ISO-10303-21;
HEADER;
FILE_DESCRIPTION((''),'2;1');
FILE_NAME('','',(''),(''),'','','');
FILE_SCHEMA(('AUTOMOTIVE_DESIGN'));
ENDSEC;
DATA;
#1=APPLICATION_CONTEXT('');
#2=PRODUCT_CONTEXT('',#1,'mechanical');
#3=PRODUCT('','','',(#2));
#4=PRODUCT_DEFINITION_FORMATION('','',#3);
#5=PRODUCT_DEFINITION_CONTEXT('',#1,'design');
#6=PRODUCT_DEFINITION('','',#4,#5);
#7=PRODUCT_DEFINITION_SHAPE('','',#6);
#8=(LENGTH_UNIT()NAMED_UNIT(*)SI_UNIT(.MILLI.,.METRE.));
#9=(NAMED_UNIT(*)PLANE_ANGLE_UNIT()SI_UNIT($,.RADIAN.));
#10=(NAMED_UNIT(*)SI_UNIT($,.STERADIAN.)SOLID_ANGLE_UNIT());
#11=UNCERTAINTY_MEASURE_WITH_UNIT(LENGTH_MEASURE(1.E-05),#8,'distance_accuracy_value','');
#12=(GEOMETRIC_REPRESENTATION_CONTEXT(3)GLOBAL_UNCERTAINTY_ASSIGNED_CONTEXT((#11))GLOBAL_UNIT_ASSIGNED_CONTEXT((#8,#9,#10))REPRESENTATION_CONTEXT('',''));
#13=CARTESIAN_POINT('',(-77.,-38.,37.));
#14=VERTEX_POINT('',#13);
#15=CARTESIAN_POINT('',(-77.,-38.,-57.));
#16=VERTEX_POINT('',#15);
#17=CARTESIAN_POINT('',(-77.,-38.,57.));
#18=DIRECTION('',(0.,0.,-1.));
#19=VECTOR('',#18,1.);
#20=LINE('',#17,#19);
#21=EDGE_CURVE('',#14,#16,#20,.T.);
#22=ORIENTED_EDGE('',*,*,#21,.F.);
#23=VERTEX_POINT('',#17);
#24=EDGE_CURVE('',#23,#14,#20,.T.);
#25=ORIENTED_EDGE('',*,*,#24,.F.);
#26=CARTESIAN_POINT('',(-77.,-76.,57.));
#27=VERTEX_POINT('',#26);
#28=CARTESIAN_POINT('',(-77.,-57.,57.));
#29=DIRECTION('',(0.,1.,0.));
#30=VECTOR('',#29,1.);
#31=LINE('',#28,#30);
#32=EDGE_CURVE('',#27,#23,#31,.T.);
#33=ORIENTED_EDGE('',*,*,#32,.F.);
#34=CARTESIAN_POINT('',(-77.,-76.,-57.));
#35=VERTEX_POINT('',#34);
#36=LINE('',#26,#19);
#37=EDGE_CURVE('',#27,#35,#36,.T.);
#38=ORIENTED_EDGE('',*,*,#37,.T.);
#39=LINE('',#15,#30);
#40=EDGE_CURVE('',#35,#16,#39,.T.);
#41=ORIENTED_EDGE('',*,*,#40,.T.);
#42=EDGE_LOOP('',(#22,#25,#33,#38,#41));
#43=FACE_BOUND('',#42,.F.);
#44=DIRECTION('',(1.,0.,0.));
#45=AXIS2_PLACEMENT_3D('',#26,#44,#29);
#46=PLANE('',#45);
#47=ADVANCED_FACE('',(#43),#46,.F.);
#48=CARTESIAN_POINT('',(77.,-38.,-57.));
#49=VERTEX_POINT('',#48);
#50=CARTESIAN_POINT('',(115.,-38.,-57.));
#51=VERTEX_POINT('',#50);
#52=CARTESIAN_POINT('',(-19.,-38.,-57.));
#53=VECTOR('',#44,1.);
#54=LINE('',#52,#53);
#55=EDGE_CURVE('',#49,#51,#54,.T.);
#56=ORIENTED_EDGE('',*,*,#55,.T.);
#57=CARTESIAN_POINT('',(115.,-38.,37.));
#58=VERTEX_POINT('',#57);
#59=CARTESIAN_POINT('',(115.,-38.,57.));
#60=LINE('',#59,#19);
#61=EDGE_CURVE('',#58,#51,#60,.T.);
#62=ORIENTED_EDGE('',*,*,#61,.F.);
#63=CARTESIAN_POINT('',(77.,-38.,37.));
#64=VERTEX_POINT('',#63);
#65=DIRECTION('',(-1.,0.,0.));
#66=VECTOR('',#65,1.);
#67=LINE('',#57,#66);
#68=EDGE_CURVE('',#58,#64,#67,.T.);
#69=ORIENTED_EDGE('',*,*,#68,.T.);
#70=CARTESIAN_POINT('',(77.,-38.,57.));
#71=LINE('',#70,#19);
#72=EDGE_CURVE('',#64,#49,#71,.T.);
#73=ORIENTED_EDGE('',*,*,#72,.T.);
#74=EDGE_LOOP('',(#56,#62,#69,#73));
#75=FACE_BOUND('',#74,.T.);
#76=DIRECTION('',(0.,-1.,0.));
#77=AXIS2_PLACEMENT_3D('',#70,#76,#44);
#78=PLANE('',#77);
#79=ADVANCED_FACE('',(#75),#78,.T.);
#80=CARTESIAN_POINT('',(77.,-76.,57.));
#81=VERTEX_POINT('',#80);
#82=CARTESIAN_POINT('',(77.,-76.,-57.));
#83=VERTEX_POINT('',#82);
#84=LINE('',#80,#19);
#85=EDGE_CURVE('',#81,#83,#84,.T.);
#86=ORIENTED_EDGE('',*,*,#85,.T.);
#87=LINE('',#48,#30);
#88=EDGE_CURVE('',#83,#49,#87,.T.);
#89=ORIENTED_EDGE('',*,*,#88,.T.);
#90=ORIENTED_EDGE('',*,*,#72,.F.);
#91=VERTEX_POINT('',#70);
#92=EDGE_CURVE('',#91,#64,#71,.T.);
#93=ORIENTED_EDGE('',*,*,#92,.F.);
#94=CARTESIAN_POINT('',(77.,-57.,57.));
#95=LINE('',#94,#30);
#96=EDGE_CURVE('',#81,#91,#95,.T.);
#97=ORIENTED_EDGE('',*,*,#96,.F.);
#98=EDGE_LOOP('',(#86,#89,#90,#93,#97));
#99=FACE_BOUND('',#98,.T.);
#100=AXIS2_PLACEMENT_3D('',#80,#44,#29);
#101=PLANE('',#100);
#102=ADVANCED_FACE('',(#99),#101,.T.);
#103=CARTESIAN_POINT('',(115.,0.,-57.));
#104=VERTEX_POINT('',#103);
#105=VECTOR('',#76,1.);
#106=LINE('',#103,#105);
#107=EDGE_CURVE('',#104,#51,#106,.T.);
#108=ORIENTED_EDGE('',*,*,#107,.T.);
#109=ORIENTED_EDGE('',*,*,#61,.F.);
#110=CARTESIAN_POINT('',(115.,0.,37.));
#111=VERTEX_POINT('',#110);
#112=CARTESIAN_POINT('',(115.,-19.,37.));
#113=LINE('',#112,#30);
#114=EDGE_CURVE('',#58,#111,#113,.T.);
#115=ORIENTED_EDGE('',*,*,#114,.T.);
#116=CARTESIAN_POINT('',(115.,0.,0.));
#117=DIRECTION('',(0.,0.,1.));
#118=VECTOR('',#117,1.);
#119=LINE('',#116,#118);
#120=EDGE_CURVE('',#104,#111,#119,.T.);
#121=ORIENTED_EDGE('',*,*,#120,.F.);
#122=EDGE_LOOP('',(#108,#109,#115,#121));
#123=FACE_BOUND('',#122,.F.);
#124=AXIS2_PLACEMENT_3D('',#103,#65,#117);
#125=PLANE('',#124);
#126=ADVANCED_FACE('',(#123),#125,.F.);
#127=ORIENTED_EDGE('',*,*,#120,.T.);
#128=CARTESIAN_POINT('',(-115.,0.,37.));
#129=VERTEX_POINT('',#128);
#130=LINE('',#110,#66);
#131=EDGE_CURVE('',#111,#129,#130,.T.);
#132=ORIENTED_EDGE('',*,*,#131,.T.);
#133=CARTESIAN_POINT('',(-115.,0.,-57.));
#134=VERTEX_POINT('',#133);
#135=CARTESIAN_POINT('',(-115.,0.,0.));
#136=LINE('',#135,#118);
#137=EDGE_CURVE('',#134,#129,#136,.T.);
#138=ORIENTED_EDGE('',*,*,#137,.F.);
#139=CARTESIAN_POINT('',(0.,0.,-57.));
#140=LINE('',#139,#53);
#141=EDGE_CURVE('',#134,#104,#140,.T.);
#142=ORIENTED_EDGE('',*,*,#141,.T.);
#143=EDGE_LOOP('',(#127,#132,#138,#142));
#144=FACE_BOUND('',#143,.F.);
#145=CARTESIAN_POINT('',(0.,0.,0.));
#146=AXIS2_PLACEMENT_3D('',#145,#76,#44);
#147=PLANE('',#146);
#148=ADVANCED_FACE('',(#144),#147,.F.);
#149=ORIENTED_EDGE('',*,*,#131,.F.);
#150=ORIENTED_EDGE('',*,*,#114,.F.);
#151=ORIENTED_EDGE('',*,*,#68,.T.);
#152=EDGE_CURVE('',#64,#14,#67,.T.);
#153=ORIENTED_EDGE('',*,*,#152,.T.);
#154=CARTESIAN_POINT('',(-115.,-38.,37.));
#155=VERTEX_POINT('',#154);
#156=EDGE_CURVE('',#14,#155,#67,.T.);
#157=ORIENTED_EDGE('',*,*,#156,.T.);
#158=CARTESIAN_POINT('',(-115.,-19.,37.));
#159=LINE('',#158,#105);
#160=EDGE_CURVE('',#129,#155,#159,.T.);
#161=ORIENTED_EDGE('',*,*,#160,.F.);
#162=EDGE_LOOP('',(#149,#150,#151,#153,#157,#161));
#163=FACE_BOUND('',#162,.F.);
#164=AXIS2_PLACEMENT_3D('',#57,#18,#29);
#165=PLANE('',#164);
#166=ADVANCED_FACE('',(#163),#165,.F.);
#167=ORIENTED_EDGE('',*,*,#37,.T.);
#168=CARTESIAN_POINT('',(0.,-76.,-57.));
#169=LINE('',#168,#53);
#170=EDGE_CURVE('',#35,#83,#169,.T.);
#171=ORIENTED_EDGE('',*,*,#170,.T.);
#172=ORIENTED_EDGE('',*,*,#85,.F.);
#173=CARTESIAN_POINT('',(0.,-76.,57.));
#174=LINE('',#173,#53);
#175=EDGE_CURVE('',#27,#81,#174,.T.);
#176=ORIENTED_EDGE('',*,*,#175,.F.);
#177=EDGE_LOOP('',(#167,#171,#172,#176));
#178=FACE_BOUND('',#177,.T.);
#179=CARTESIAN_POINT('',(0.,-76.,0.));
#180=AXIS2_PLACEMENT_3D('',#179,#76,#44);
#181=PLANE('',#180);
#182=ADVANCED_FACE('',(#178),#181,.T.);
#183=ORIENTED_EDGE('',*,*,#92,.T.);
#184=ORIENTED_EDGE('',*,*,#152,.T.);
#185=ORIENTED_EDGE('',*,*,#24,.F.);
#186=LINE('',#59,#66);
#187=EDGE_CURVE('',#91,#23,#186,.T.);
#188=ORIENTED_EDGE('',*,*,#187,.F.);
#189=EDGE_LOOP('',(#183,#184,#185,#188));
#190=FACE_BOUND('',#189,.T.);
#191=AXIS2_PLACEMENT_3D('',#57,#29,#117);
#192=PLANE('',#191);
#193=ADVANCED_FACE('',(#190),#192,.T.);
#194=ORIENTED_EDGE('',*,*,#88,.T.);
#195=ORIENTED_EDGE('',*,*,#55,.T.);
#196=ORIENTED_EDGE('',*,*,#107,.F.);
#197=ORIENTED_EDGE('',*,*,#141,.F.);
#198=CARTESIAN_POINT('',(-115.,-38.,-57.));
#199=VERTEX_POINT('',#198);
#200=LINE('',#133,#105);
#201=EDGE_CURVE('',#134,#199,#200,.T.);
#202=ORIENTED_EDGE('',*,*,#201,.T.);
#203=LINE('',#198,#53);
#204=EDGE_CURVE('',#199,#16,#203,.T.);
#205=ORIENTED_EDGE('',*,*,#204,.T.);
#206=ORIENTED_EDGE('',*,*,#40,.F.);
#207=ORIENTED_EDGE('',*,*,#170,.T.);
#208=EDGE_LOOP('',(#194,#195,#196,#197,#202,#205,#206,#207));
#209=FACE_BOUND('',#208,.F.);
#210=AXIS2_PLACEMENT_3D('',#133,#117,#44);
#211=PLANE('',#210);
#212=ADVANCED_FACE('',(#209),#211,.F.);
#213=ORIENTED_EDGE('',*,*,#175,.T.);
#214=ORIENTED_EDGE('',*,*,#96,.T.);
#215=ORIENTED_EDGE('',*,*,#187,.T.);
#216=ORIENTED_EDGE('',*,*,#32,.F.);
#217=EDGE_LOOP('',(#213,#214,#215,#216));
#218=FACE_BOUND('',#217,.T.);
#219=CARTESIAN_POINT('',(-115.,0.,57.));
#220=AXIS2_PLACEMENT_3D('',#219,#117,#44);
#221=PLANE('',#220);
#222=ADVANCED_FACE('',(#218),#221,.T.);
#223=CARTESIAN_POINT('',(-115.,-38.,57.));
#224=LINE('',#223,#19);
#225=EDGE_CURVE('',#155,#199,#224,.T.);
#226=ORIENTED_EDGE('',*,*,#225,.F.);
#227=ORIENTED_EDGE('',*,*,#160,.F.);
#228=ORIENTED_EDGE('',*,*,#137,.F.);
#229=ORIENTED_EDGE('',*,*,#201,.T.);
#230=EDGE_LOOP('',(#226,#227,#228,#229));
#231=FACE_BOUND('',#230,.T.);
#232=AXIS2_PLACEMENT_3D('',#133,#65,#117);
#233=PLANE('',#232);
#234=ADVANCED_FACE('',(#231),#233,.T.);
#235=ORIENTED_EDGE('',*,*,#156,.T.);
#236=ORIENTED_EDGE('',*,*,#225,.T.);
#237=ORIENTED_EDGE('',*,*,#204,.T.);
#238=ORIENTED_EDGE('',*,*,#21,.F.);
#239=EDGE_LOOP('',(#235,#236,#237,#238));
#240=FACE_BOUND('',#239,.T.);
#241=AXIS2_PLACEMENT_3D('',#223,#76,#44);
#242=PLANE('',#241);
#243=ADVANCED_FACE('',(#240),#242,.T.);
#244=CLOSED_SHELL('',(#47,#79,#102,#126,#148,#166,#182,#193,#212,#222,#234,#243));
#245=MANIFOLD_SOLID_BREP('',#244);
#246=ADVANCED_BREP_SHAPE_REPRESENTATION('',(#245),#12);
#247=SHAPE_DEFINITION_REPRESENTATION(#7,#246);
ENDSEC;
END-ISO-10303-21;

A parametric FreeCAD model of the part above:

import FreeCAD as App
import Part
import Sketcher
from FreeCAD import Vector

doc = App.newDocument("Part")
body = doc.addObject("PartDesign::Body", "Body")

# Sketch on XZ plane
sketch1 = body.newObject("Sketcher::SketchObject", "Sketch")
sketch1.AttachmentSupport = (doc.getObject("XZ_Plane"), [""])
sketch1.MapMode = "FlatFace"
sketch1.addGeometry([
    Part.LineSegment(Vector(-115, 57, 0), Vector(-115, -57, 0)),
    Part.LineSegment(Vector(-115, -57, 0), Vector(115, -57, 0)),
    Part.LineSegment(Vector(115, -57, 0), Vector(115, 57, 0)),
    Part.LineSegment(Vector(115, 57, 0), Vector(-115, 57, 0)),
], False)
sketch1.addConstraint([
    Sketcher.Constraint("Coincident", 0, 2, 1, 1),
    Sketcher.Constraint("Coincident", 1, 2, 2, 1),
    Sketcher.Constraint("Coincident", 2, 2, 3, 1),
    Sketcher.Constraint("Coincident", 3, 2, 0, 1),
    Sketcher.Constraint("Vertical", 0),
    Sketcher.Constraint("Horizontal", 1),
    Sketcher.Constraint("Vertical", 2),
    Sketcher.Constraint("Horizontal", 3),
    Sketcher.Constraint("Symmetric", 0, 2, 2, 2, -1, 1),
    Sketcher.Constraint("DistanceX", 1, 1, 1, 2, 230.0),
    Sketcher.Constraint("DistanceY", 0, 2, 0, 1, 114.0),
])
pad1 = body.newObject("PartDesign::Pad", "Pad")
pad1.Profile = sketch1
pad1.Length = 76

# Sketch on YZ plane
sketch2 = body.newObject("Sketcher::SketchObject", "Sketch001")
sketch2.AttachmentSupport = (doc.getObject("YZ_Plane"), [""])
sketch2.MapMode = "FlatFace"
sketch2.AttachmentOffset = App.Placement(Vector(0, 0, 115), App.Rotation())
sketch2.addGeometry([
    Part.LineSegment(Vector(-38, 57, 0), Vector(-38, 37, 0)),
    Part.LineSegment(Vector(-38, 37, 0), Vector(0, 37, 0)),
    Part.LineSegment(Vector(0, 37, 0), Vector(0, 57, 0)),
    Part.LineSegment(Vector(0, 57, 0), Vector(-38, 57, 0)),
], False)
sketch2.addConstraint([
    Sketcher.Constraint("Coincident", 0, 2, 1, 1),
    Sketcher.Constraint("Coincident", 1, 2, 2, 1),
    Sketcher.Constraint("Coincident", 2, 2, 3, 1),
    Sketcher.Constraint("Coincident", 3, 2, 0, 1),
    Sketcher.Constraint("Vertical", 0),
    Sketcher.Constraint("Horizontal", 1),
    Sketcher.Constraint("Vertical", 2),
    Sketcher.Constraint("Horizontal", 3),
    Sketcher.Constraint("PointOnObject", 1, 2, -2),
    Sketcher.Constraint("DistanceX", 1, 1, 1, 2, 38.0),
    Sketcher.Constraint("DistanceY", 0, 2, 0, 1, 20.0),
    Sketcher.Constraint("DistanceY", -1, 1, 0, 2, 37.0),
])
pocket1 = body.newObject("PartDesign::Pocket", "Pocket")
pocket1.Profile = sketch2
pocket1.Type = "ThroughAll"

# Sketch on XY plane
sketch3 = body.newObject("Sketcher::SketchObject", "Sketch002")
sketch3.AttachmentSupport = (doc.getObject("XY_Plane"), [""])
sketch3.MapMode = "FlatFace"
sketch3.AttachmentOffset = App.Placement(Vector(0, 0, 57), App.Rotation())
sketch3.addGeometry([
    Part.LineSegment(Vector(-115, -38, 0), Vector(-115, -76, 0)),  # 0
    Part.LineSegment(Vector(-115, -76, 0), Vector(-77, -76, 0)),  # 1
    Part.LineSegment(Vector(-77, -76, 0), Vector(-77, -38, 0)),  # 2
    Part.LineSegment(Vector(-77, -38, 0), Vector(-115, -38, 0)),  # 3
    Part.LineSegment(Vector(77, -38, 0), Vector(77, -76, 0)),  # 4
    Part.LineSegment(Vector(77, -76, 0), Vector(115, -76, 0)),  # 5
    Part.LineSegment(Vector(115, -76, 0), Vector(115, -38, 0)),  # 6
    Part.LineSegment(Vector(115, -38, 0), Vector(77, -38, 0)),  # 7
], False)
sketch3.addConstraint([
    Sketcher.Constraint("Coincident", 0, 2, 1, 1),
    Sketcher.Constraint("Coincident", 1, 2, 2, 1),
    Sketcher.Constraint("Coincident", 2, 2, 3, 1),
    Sketcher.Constraint("Coincident", 3, 2, 0, 1),
    Sketcher.Constraint("Coincident", 4, 2, 5, 1),
    Sketcher.Constraint("Coincident", 5, 2, 6, 1),
    Sketcher.Constraint("Coincident", 6, 2, 7, 1),
    Sketcher.Constraint("Coincident", 7, 2, 4, 1),
    Sketcher.Constraint("Vertical", 0),
    Sketcher.Constraint("Horizontal", 1),
    Sketcher.Constraint("Vertical", 2),
    Sketcher.Constraint("Horizontal", 3),
    Sketcher.Constraint("Vertical", 4),
    Sketcher.Constraint("Horizontal", 5),
    Sketcher.Constraint("Vertical", 6),
    Sketcher.Constraint("Horizontal", 7),
    Sketcher.Constraint("Symmetric", 1, 2, 4, 2, -2),
    Sketcher.Constraint("Symmetric", 3, 2, 6, 2, -2),
    Sketcher.Constraint("Equal", 7, 0),
    Sketcher.Constraint("DistanceX", 1, 1, 1, 2, 38.0),
    Sketcher.Constraint("DistanceX", 0, 2, -1, 1, 115.0),
    Sketcher.Constraint("DistanceY", 0, 2, -1, 1, 76.0),
])
pocket2 = body.newObject("PartDesign::Pocket", "Pocket001")
pocket2.Profile = sketch3
pocket2.Type = "ThroughAll"

doc.recompute()
